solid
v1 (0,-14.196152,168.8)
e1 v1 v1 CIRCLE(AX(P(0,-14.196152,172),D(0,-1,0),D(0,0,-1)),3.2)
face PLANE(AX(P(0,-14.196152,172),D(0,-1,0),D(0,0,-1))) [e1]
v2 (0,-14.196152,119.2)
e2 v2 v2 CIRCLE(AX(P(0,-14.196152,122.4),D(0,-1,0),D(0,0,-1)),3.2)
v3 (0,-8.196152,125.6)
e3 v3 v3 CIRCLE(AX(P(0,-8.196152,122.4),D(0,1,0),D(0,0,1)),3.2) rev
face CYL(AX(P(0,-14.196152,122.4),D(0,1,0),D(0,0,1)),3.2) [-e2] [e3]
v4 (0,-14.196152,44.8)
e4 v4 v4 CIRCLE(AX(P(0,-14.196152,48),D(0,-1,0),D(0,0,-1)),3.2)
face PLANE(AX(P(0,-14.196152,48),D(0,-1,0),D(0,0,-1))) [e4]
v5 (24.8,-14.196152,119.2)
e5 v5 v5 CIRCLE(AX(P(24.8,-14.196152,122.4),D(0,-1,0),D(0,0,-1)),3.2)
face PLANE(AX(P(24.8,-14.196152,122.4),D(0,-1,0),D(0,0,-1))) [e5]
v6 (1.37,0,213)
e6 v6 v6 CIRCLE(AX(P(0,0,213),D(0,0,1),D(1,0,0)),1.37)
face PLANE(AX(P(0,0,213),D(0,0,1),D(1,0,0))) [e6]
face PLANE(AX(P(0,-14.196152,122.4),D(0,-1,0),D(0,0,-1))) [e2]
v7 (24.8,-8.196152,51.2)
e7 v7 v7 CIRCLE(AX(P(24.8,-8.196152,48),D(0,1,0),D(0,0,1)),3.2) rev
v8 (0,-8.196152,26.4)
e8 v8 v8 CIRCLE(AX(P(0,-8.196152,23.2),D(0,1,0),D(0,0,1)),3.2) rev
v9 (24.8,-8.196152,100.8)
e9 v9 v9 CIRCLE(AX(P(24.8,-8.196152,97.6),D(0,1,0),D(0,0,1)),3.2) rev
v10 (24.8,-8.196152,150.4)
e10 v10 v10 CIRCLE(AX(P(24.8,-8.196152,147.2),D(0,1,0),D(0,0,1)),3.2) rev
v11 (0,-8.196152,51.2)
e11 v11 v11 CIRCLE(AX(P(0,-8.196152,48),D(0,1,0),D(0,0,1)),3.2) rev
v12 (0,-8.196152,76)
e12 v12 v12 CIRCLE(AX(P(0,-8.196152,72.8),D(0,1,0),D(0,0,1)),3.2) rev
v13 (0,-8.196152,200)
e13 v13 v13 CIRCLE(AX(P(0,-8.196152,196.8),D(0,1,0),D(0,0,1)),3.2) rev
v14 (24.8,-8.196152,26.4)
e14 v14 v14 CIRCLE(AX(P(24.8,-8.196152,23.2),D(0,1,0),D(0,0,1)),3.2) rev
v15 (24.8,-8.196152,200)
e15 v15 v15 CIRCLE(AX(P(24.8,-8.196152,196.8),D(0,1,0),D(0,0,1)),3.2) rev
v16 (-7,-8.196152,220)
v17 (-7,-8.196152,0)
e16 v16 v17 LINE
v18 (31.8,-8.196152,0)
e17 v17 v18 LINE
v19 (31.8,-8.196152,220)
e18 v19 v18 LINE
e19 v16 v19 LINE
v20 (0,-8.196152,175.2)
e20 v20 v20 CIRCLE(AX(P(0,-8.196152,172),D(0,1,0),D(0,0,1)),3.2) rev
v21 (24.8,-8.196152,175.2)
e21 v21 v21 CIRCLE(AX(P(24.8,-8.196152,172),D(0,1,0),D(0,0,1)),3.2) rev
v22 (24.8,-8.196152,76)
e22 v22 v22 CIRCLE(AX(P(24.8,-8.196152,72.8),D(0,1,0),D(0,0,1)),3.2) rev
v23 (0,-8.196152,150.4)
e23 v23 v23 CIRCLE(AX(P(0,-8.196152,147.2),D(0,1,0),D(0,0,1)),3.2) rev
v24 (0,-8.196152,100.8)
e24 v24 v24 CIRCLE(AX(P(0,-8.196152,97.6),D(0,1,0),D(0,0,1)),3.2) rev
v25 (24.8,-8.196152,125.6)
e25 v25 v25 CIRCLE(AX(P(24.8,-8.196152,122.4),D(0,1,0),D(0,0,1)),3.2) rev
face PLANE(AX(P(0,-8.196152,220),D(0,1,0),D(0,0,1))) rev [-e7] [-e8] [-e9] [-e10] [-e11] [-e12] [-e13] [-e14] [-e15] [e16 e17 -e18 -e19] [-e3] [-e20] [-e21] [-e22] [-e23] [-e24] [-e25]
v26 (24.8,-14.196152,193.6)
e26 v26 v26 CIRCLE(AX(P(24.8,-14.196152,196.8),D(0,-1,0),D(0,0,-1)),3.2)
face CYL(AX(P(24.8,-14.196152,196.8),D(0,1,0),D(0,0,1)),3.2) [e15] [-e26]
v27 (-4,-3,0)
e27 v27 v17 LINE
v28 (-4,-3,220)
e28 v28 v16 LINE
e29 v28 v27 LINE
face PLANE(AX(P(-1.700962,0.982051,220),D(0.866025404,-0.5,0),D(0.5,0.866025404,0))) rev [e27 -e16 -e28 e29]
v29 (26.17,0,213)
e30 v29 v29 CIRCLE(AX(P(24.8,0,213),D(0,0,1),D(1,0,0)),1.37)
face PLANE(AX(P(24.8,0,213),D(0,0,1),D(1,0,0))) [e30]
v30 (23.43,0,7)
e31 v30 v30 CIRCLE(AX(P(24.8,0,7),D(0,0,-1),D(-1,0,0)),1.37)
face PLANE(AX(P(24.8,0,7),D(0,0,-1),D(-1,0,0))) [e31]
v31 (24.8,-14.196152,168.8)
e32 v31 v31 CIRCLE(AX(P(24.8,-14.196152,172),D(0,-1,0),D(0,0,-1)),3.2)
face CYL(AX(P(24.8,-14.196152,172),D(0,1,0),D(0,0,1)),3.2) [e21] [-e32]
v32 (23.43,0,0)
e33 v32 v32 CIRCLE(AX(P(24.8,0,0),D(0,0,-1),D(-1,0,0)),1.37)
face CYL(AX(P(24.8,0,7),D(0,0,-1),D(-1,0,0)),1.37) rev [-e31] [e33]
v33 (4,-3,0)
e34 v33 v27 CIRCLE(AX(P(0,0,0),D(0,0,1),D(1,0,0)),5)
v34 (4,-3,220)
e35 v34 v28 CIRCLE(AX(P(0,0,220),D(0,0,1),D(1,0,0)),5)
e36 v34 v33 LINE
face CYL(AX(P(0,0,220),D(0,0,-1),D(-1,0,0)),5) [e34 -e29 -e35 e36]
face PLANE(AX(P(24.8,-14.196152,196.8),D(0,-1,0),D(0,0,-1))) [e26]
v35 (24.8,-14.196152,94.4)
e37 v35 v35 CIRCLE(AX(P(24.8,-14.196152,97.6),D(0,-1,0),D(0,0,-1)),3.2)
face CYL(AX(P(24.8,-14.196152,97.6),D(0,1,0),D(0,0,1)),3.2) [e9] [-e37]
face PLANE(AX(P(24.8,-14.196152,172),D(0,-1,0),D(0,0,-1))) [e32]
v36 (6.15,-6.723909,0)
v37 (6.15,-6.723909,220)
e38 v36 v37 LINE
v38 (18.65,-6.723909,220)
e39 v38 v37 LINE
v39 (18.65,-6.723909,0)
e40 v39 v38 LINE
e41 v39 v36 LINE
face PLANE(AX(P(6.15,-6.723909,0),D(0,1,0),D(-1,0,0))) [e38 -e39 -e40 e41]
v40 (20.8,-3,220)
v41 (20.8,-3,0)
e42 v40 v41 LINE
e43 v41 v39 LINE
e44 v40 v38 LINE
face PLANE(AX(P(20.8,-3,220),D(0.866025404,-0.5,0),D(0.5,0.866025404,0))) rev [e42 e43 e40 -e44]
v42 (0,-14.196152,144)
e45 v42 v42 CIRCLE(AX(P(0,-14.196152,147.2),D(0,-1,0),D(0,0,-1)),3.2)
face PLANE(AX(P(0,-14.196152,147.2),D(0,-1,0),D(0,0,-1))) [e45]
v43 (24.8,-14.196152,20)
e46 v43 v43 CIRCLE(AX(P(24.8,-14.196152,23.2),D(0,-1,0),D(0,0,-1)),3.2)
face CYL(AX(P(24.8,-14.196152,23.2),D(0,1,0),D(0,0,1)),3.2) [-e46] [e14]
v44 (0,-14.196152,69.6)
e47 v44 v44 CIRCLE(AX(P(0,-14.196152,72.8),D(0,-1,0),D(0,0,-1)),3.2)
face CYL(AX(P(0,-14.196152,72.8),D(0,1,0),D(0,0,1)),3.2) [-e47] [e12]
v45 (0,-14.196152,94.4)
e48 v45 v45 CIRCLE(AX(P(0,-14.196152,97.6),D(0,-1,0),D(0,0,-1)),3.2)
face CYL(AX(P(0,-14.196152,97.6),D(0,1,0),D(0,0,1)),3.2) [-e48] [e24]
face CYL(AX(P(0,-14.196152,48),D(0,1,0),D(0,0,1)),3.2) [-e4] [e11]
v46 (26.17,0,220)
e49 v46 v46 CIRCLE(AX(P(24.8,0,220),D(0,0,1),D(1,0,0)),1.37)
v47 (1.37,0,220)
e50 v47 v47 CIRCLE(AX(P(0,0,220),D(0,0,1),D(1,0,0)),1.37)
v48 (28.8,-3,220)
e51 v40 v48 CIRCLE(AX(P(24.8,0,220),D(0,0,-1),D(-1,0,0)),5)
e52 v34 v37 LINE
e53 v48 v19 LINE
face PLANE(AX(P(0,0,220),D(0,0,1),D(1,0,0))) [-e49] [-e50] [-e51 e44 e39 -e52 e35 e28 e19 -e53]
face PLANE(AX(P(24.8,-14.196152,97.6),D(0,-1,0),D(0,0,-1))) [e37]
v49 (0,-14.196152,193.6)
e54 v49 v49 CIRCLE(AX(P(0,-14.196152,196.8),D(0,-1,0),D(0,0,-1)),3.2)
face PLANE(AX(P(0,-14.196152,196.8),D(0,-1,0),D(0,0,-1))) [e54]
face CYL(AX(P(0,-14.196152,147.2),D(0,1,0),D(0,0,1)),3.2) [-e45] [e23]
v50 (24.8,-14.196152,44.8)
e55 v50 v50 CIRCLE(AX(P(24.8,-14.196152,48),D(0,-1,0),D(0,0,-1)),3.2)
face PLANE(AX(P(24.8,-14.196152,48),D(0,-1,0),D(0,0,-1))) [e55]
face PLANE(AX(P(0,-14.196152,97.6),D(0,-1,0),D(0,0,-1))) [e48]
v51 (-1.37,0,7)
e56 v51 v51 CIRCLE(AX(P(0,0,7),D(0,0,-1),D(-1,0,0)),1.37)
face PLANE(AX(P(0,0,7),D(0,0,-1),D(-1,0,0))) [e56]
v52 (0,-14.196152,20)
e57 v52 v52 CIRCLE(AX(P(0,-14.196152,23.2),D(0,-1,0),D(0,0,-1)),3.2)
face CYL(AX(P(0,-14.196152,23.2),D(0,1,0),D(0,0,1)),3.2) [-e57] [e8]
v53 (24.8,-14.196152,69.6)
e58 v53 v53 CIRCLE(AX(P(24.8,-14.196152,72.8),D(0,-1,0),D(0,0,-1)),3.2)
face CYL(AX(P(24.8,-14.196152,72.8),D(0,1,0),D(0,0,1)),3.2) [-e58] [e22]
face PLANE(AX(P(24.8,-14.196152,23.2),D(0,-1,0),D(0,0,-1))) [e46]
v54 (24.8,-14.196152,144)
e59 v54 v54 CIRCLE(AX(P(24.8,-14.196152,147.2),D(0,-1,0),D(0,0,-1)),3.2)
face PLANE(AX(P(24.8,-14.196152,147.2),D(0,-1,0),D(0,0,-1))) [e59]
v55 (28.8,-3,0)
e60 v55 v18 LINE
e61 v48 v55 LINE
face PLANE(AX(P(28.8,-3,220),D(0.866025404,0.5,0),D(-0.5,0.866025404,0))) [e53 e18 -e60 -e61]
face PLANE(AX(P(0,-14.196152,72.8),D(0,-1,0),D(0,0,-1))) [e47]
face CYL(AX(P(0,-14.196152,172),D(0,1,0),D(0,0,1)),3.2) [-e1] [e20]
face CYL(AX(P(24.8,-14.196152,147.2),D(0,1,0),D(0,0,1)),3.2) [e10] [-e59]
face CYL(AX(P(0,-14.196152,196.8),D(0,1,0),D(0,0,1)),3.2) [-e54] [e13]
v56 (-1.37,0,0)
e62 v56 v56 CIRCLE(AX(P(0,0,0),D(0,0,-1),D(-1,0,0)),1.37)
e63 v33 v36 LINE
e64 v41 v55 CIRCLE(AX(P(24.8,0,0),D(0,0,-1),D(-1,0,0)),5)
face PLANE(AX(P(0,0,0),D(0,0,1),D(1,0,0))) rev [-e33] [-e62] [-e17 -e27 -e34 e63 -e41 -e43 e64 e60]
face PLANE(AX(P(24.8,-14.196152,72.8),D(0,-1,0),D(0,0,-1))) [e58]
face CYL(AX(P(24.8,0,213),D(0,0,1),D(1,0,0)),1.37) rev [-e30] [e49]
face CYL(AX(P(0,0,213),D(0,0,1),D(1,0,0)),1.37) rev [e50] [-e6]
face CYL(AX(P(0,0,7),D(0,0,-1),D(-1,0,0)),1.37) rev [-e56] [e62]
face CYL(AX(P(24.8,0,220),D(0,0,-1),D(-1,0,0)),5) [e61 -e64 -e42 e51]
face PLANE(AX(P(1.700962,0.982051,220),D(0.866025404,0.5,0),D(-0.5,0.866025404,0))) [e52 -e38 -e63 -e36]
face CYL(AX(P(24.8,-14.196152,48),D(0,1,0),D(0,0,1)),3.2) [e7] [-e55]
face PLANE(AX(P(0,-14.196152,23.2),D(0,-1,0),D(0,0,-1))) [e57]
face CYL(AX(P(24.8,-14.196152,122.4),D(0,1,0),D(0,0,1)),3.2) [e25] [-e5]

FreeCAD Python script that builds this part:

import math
import FreeCAD as App
import Part
import Sketcher
from FreeCAD import Vector
Q = App.Units.Quantity

doc = App.newDocument("Part")
body = doc.addObject("PartDesign::Body", "Body")
body.AllowCompound = True

sketch1 = body.newObject("Sketcher::SketchObject", "Sketch")
sketch1.AttachmentSupport = (doc.getObject("XY_Plane"), [""])
sketch1.MapMode = "FlatFace"
sketch1.addGeometry([
    Part.LineSegment(Vector(-4, -3, 0), Vector(-7, -8, 0)),
    Part.LineSegment(Vector(-7, -8, 0), Vector(7, -8, 0)),
    Part.LineSegment(Vector(7, -8, 0), Vector(4, -3, 0)),
    Part.ArcOfCircle(Part.Circle(Vector(0, 0, 0), Vector(0, 0, 1), 5), math.radians(-37), math.radians(217)),
    Part.LineSegment(Vector(32, -8, 0), Vector(29, -3, 0)),
    Part.ArcOfCircle(Part.Circle(Vector(25, 0, 0), Vector(0, 0, 1), 5), math.radians(-37), math.radians(217)),
    Part.LineSegment(Vector(21, -3, 0), Vector(18, -8, 0)),
    Part.LineSegment(Vector(18, -8, 0), Vector(32, -8, 0)),
], False)
sketch1.addConstraint([
    Sketcher.Constraint("Coincident", 0, 2, 1, 1),
    Sketcher.Constraint("Coincident", 1, 2, 2, 1),
    Sketcher.Constraint("Coincident", 2, 2, 3, 1),
    Sketcher.Constraint("Coincident", 3, 2, 0, 1),
    Sketcher.Constraint("Coincident", 4, 2, 5, 1),
    Sketcher.Constraint("Coincident", 5, 2, 6, 1),
    Sketcher.Constraint("Coincident", 6, 2, 7, 1),
    Sketcher.Constraint("Coincident", 7, 2, 4, 1),
    Sketcher.Constraint("Horizontal", 1),
    Sketcher.Constraint("Horizontal", 7),
    Sketcher.Constraint("Coincident", 3, 3, -1, 1),
    Sketcher.Constraint("Equal", 3, 5),
    Sketcher.Constraint("PointOnObject", 5, 3, -1),
    Sketcher.Constraint("Parallel", 2, 4),
    Sketcher.Constraint("Parallel", 0, 6),
    Sketcher.Constraint("Horizontal", 2, 2, 3, 2),
    Sketcher.Constraint("Horizontal", 3, 2, 4, 2),
    Sketcher.Constraint("Horizontal", 4, 2, 5, 2),
    Sketcher.Constraint("Horizontal", 1, 2, 6, 2),
    Sketcher.Constraint("Equal", 0, 2),
    Sketcher.Constraint("Radius", 3, Q("5 mm")),
    Sketcher.Constraint("DistanceX", 1, 1, 1, 2, Q("14 mm")),
    Sketcher.Constraint("Angle", 0, Q("-120 deg")),
    Sketcher.Constraint("Distance", 0, Q("6 mm")),
    Sketcher.Constraint("DistanceX", -1, 1, 5, 3, Q("24.8 mm")),
])
pad1 = body.newObject("PartDesign::Pad", "Pad")
pad1.Profile = sketch1
pad1.Length = 220

sketch2 = body.newObject("Sketcher::SketchObject", "Sketch001")
sketch2.AttachmentSupport = (doc.getObject("XZ_Plane"), [""])
sketch2.MapMode = "FlatFace"
sketch2.AttachmentOffset = App.Placement(Vector(0, 0, 8.196152), App.Rotation())
sketch2.addGeometry([
    Part.Circle(Vector(0, 196.8, 0), Vector(0, 0, 1), 3.2),
    Part.Circle(Vector(24.8, 196.8, 0), Vector(0, 0, 1), 3.2),
    Part.Circle(Vector(24.8, 172, 0), Vector(0, 0, 1), 3.2),
    Part.Circle(Vector(24.8, 147.2, 0), Vector(0, 0, 1), 3.2),
    Part.Circle(Vector(24.8, 122.4, 0), Vector(0, 0, 1), 3.2),
    Part.Circle(Vector(24.8, 97.6, 0), Vector(0, 0, 1), 3.2),
    Part.Circle(Vector(24.8, 72.8, 0), Vector(0, 0, 1), 3.2),
    Part.Circle(Vector(24.8, 48, 0), Vector(0, 0, 1), 3.2),
    Part.Circle(Vector(24.8, 23.2, 0), Vector(0, 0, 1), 3.2),
    Part.Circle(Vector(0, 172, 0), Vector(0, 0, 1), 3.2),
    Part.Circle(Vector(0, 147.2, 0), Vector(0, 0, 1), 3.2),
    Part.Circle(Vector(0, 122.4, 0), Vector(0, 0, 1), 3.2),
    Part.Circle(Vector(0, 97.6, 0), Vector(0, 0, 1), 3.2),
    Part.Circle(Vector(0, 72.8, 0), Vector(0, 0, 1), 3.2),
    Part.Circle(Vector(0, 48, 0), Vector(0, 0, 1), 3.2),
    Part.Circle(Vector(0, 23.2, 0), Vector(0, 0, 1), 3.2),
], False)
sketch2.addConstraint([
    Sketcher.Constraint("Equal", 0, 1),
    Sketcher.Constraint("Equal", 1, 2),
    Sketcher.Constraint("Equal", 2, 3),
    Sketcher.Constraint("Equal", 3, 4),
    Sketcher.Constraint("Equal", 4, 5),
    Sketcher.Constraint("Equal", 5, 6),
    Sketcher.Constraint("Equal", 6, 7),
    Sketcher.Constraint("Equal", 7, 8),
    Sketcher.Constraint("Equal", 8, 9),
    Sketcher.Constraint("Equal", 9, 10),
    Sketcher.Constraint("Equal", 10, 11),
    Sketcher.Constraint("Equal", 11, 12),
    Sketcher.Constraint("Equal", 12, 13),
    Sketcher.Constraint("Equal", 13, 14),
    Sketcher.Constraint("Equal", 14, 15),
    Sketcher.Constraint("PointOnObject", 0, 3, -2),
    Sketcher.Constraint("PointOnObject", 9, 3, -2),
    Sketcher.Constraint("PointOnObject", 10, 3, -2),
    Sketcher.Constraint("PointOnObject", 11, 3, -2),
    Sketcher.Constraint("PointOnObject", 12, 3, -2),
    Sketcher.Constraint("PointOnObject", 13, 3, -2),
    Sketcher.Constraint("PointOnObject", 14, 3, -2),
    Sketcher.Constraint("PointOnObject", 15, 3, -2),
    Sketcher.Constraint("Horizontal", 0, 3, 1, 3),
    Sketcher.Constraint("Horizontal", 2, 3, 9, 3),
    Sketcher.Constraint("Horizontal", 3, 3, 10, 3),
    Sketcher.Constraint("Horizontal", 4, 3, 11, 3),
    Sketcher.Constraint("Horizontal", 5, 3, 12, 3),
    Sketcher.Constraint("Horizontal", 6, 3, 13, 3),
    Sketcher.Constraint("Horizontal", 7, 3, 14, 3),
    Sketcher.Constraint("Horizontal", 8, 3, 15, 3),
    Sketcher.Constraint("Vertical", 1, 3, 2, 3),
    Sketcher.Constraint("Vertical", 2, 3, 3, 3),
    Sketcher.Constraint("Vertical", 3, 3, 4, 3),
    Sketcher.Constraint("Vertical", 4, 3, 5, 3),
    Sketcher.Constraint("Vertical", 5, 3, 6, 3),
    Sketcher.Constraint("Vertical", 6, 3, 7, 3),
    Sketcher.Constraint("Vertical", 7, 3, 8, 3),
    Sketcher.Constraint("Diameter", 0, Q("6.4 mm")),
    Sketcher.Constraint("DistanceY", -1, 1, 2, 3, Q("172 mm")),
    Sketcher.Constraint("DistanceY", -1, 1, 7, 3, Q("48 mm")),
    Sketcher.Constraint("DistanceY", 6, 3, 1, 3, Q("124 mm")),
    Sketcher.Constraint("DistanceY", 8, 3, 3, 3, Q("124 mm")),
    Sketcher.Constraint("DistanceY", -1, 1, 0, 3, Q("196.8 mm")),
    Sketcher.Constraint("DistanceX", -1, 1, 1, 3, Q("24.8 mm")),
    Sketcher.Constraint("DistanceY", -1, 1, 3, 3, Q("147.2 mm")),
    Sketcher.Constraint("DistanceY", -1, 1, 4, 3, Q("122.4 mm")),
    Sketcher.Constraint("DistanceY", -1, 1, 5, 3, Q("97.6 mm")),
])
pad2 = body.newObject("PartDesign::Pad", "Pad001")
pad2.Profile = sketch2
pad2.Length = 6

sketch3 = body.newObject("Sketcher::SketchObject", "Sketch002")
sketch3.AttachmentSupport = (doc.getObject("XY_Plane"), [""])
sketch3.MapMode = "FlatFace"
sketch3.AttachmentOffset = App.Placement(Vector(0, 0, 220), App.Rotation())
sketch3.addGeometry([
    Part.LineSegment(Vector(18.6, -8.2, 0), Vector(18.6, -6.7, 0)),
    Part.LineSegment(Vector(18.6, -6.7, 0), Vector(6.2, -6.7, 0)),
    Part.LineSegment(Vector(6.2, -6.7, 0), Vector(6.2, -8.2, 0)),
    Part.LineSegment(Vector(6.2, -8.2, 0), Vector(18.6, -8.2, 0)),
], False)
sketch3.addConstraint([
    Sketcher.Constraint("Coincident", 0, 2, 1, 1),
    Sketcher.Constraint("Coincident", 1, 2, 2, 1),
    Sketcher.Constraint("Coincident", 2, 2, 3, 1),
    Sketcher.Constraint("Coincident", 3, 2, 0, 1),
    Sketcher.Constraint("Vertical", 0),
    Sketcher.Constraint("Horizontal", 1),
    Sketcher.Constraint("Vertical", 2),
    Sketcher.Constraint("Horizontal", 3),
    Sketcher.Constraint("DistanceX", 1, 2, 1, 1, Q("12.5 mm")),
    Sketcher.Constraint("DistanceX", -1, 1, 0, 2, Q("18.65 mm")),
    Sketcher.Constraint("DistanceY", 0, 1, 0, 2, Q("1.472243 mm")),
    Sketcher.Constraint("DistanceY", 0, 2, -1, 1, Q("6.723909 mm")),
])
pad3 = body.newObject("PartDesign::Pad", "Pad002")
pad3.Profile = sketch3
pad3.Length = 220
pad3.Reversed = True

sketch4 = body.newObject("Sketcher::SketchObject", "Sketch003")
sketch4.AttachmentSupport = (doc.getObject("XY_Plane"), [""])
sketch4.MapMode = "FlatFace"
sketch4.addGeometry([
    Part.Circle(Vector(0, 0, 0), Vector(0, 0, 1), 1.4),
    Part.Circle(Vector(24.8, 0, 0), Vector(0, 0, 1), 1.4),
], False)
sketch4.addConstraint([
    Sketcher.Constraint("Coincident", 0, 3, -1, 1),
    Sketcher.Constraint("Equal", 0, 1),
    Sketcher.Constraint("PointOnObject", 1, 3, -1),
    Sketcher.Constraint("Diameter", 0, Q("2.74 mm")),
    Sketcher.Constraint("DistanceX", -1, 1, 1, 3, Q("24.8 mm")),
])
pocket1 = body.newObject("PartDesign::Pocket", "Pocket")
pocket1.Profile = sketch4
pocket1.Length = 7
pocket1.Reversed = True

sketch5 = body.newObject("Sketcher::SketchObject", "Sketch004")
sketch5.AttachmentSupport = (doc.getObject("XY_Plane"), [""])
sketch5.MapMode = "FlatFace"
sketch5.AttachmentOffset = App.Placement(Vector(0, 0, 220), App.Rotation())
sketch5.addGeometry([
    Part.Circle(Vector(0, 0, 0), Vector(0, 0, 1), 1.4),
    Part.Circle(Vector(24.8, 0, 0), Vector(0, 0, 1), 1.4),
], False)
sketch5.addConstraint([
    Sketcher.Constraint("Coincident", 0, 3, -1, 1),
    Sketcher.Constraint("Equal", 0, 1),
    Sketcher.Constraint("PointOnObject", 1, 3, -1),
    Sketcher.Constraint("Diameter", 0, Q("2.74 mm")),
    Sketcher.Constraint("DistanceX", -1, 1, 1, 3, Q("24.8 mm")),
])
pocket2 = body.newObject("PartDesign::Pocket", "Pocket001")
pocket2.Profile = sketch5
pocket2.Length = 7

doc.recompute()
